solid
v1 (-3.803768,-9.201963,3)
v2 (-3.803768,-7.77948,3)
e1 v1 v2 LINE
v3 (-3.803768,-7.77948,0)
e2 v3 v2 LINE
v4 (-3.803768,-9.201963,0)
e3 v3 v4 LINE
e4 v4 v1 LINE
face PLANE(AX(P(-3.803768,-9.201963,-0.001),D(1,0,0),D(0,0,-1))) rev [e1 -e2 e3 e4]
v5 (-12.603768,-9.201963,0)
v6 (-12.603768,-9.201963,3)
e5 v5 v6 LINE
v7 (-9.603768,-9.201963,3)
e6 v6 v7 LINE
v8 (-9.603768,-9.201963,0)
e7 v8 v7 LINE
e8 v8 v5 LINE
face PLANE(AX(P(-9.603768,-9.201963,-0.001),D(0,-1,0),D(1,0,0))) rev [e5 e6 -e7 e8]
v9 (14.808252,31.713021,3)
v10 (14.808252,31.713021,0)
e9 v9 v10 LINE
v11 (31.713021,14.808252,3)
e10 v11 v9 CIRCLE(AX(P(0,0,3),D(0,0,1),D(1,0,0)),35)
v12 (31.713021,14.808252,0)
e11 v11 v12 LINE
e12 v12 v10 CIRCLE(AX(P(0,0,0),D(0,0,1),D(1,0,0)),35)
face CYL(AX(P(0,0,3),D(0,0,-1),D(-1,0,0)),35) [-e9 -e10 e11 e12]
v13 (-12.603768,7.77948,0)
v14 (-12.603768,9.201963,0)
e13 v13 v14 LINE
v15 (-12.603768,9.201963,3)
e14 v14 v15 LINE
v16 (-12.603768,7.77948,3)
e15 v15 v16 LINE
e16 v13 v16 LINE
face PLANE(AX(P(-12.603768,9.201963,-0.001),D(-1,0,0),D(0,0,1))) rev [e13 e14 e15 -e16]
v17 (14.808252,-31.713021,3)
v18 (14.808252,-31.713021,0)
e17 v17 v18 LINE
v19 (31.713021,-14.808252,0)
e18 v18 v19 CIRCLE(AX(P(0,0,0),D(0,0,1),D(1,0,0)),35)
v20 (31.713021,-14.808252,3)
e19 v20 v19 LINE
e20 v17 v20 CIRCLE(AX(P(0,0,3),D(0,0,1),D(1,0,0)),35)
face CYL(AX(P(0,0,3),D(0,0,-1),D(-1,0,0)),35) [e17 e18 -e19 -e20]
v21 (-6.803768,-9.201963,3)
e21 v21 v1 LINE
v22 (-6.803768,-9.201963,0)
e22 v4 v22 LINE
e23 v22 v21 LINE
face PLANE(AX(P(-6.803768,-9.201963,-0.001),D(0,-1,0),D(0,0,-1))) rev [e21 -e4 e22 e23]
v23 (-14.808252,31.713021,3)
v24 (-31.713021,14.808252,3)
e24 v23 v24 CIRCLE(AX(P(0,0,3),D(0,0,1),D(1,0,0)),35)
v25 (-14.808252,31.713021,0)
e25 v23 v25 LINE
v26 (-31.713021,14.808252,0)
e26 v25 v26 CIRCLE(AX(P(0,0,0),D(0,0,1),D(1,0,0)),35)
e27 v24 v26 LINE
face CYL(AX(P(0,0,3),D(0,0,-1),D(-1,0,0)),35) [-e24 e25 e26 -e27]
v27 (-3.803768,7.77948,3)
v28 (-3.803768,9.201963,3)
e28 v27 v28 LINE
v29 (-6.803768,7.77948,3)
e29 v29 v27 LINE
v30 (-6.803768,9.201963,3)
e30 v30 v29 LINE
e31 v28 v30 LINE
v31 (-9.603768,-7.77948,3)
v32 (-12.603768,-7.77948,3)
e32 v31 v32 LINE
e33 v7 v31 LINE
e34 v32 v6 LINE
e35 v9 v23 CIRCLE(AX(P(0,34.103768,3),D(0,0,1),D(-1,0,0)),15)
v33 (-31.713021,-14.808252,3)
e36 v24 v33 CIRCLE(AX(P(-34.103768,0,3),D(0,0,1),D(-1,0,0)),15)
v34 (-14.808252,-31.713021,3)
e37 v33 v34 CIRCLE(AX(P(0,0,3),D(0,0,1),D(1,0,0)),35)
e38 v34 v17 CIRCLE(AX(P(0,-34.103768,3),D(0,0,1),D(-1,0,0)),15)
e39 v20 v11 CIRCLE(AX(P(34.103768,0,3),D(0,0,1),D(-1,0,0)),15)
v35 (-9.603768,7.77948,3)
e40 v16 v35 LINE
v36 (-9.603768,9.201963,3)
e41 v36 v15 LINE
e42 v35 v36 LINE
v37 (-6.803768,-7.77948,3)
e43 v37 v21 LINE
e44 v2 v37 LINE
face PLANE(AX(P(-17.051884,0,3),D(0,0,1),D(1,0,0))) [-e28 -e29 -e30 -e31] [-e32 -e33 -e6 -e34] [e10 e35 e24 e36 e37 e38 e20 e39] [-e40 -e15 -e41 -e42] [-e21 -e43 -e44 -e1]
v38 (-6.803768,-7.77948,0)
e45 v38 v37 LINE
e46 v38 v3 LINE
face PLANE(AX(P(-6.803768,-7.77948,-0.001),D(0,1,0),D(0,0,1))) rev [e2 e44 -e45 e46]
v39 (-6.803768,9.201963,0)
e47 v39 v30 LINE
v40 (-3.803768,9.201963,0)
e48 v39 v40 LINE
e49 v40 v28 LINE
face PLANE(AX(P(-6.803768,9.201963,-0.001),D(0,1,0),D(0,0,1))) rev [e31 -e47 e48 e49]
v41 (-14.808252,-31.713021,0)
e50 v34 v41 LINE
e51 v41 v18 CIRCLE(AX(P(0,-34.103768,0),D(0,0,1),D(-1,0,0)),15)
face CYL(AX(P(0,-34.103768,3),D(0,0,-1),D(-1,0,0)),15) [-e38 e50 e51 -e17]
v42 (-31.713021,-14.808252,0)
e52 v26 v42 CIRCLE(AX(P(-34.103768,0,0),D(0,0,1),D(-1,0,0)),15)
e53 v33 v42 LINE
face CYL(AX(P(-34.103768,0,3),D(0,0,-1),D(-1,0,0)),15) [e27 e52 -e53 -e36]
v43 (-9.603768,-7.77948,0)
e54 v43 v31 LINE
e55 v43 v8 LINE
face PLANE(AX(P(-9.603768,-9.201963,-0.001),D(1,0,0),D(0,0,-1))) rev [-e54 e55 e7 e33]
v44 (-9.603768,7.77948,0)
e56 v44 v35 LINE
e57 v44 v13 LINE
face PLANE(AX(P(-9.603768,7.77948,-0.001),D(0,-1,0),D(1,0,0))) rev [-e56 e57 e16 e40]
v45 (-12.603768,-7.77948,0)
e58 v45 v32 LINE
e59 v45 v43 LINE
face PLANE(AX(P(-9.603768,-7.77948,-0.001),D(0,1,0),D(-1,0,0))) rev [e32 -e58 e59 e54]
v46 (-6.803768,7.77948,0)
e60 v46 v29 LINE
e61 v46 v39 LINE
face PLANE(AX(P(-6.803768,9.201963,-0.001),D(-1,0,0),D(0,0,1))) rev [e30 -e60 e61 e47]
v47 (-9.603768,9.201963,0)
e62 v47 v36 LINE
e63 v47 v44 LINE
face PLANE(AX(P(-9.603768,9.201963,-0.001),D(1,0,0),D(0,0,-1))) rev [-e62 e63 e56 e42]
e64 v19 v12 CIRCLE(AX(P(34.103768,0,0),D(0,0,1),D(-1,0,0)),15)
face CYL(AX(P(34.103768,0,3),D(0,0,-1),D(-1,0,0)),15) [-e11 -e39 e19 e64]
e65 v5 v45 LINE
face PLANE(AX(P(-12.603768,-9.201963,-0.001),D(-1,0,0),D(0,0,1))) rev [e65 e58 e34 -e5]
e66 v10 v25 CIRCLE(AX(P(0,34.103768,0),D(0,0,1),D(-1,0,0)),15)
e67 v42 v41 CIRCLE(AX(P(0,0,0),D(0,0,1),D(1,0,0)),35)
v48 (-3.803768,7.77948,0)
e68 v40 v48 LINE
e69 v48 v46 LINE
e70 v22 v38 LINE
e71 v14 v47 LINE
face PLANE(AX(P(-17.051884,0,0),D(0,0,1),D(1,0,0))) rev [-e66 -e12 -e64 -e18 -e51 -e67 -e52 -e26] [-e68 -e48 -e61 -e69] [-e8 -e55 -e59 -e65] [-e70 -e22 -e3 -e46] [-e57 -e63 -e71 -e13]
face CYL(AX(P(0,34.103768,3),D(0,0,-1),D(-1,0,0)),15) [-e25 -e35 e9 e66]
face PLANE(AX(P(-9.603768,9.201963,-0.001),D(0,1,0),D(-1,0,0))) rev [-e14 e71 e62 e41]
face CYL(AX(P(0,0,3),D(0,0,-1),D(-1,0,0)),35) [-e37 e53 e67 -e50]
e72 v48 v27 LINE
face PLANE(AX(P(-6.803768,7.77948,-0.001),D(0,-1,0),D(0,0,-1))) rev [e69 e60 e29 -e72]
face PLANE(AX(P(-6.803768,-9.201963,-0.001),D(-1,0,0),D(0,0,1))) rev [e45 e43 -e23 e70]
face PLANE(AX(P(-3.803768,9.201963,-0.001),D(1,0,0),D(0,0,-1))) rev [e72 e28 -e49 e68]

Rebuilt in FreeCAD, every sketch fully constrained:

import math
import FreeCAD as App
import Part
import Sketcher
from FreeCAD import Vector

doc = App.newDocument("Part")
body = doc.addObject("PartDesign::Body", "Body")

# Sketch on XY plane
sketch1 = doc.addObject("Sketcher::SketchObject", "Sketch")
body.addObject(sketch1)
sketch1.AttachmentSupport = (doc.XY_Plane, [""])
sketch1.MapMode = "FlatFace"
sketch1.addGeometry(Part.ArcOfCircle(Part.Circle(Vector(0, 0, 0), Vector(0, 0, 1), 35), math.radians(-155), math.radians(-115)), False)
sketch1.addGeometry(Part.ArcOfCircle(Part.Circle(Vector(0, -34, 0), Vector(0, 0, 1), 15), math.radians(171), math.radians(369)), False)
sketch1.addGeometry(Part.ArcOfCircle(Part.Circle(Vector(0, 0, 0), Vector(0, 0, 1), 35), math.radians(-65), math.radians(-25)), False)
sketch1.addGeometry(Part.ArcOfCircle(Part.Circle(Vector(34, 0, 0), Vector(0, 0, 1), 15), math.radians(-99), math.radians(99)), False)
sketch1.addGeometry(Part.ArcOfCircle(Part.Circle(Vector(0, 0, 0), Vector(0, 0, 1), 35), math.radians(25), math.radians(65)), False)
sketch1.addGeometry(Part.ArcOfCircle(Part.Circle(Vector(0, 34, 0), Vector(0, 0, 1), 15), math.radians(-9), math.radians(189)), False)
sketch1.addGeometry(Part.ArcOfCircle(Part.Circle(Vector(0, 0, 0), Vector(0, 0, 1), 35), math.radians(115), math.radians(155)), False)
sketch1.addGeometry(Part.ArcOfCircle(Part.Circle(Vector(-34, 0, 0), Vector(0, 0, 1), 15), math.radians(81), math.radians(279)), False)
sketch1.addConstraint(Sketcher.Constraint("Coincident", 0, 2, 1, 1))
sketch1.addConstraint(Sketcher.Constraint("Coincident", 1, 2, 2, 1))
sketch1.addConstraint(Sketcher.Constraint("Coincident", 2, 2, 3, 1))
sketch1.addConstraint(Sketcher.Constraint("Coincident", 3, 2, 4, 1))
sketch1.addConstraint(Sketcher.Constraint("Coincident", 4, 2, 5, 1))
sketch1.addConstraint(Sketcher.Constraint("Coincident", 5, 2, 6, 1))
sketch1.addConstraint(Sketcher.Constraint("Coincident", 6, 2, 7, 1))
sketch1.addConstraint(Sketcher.Constraint("Coincident", 7, 2, 0, 1))
sketch1.addConstraint(Sketcher.Constraint("Coincident", 0, 3, -1, 1))
sketch1.addConstraint(Sketcher.Constraint("Coincident", 2, 3, -1, 1))
sketch1.addConstraint(Sketcher.Constraint("Coincident", 4, 3, -1, 1))
sketch1.addConstraint(Sketcher.Constraint("Coincident", 6, 3, -1, 1))
sketch1.addConstraint(Sketcher.Constraint("Equal", 0, 2))
sketch1.addConstraint(Sketcher.Constraint("Equal", 1, 3))
sketch1.addConstraint(Sketcher.Constraint("Equal", 2, 4))
sketch1.addConstraint(Sketcher.Constraint("Equal", 3, 5))
sketch1.addConstraint(Sketcher.Constraint("Equal", 4, 6))
sketch1.addConstraint(Sketcher.Constraint("Equal", 5, 7))
sketch1.addConstraint(Sketcher.Constraint("Symmetric", 1, 3, 5, 3, -1, 1))
sketch1.addConstraint(Sketcher.Constraint("Symmetric", 3, 3, 7, 3, -1, 1))
sketch1.addConstraint(Sketcher.Constraint("PointOnObject", 1, 3, -2))
sketch1.addConstraint(Sketcher.Constraint("PointOnObject", 3, 3, -1))
sketch1.addConstraint(Sketcher.Constraint("Radius", 0, 35.0))
sketch1.addConstraint(Sketcher.Constraint("Radius", 1, 15.0))
sketch1.addConstraint(Sketcher.Constraint("DistanceY", 0, 2, -1, 1, 31.713021))
sketch1.addConstraint(Sketcher.Constraint("DistanceX", -1, 1, 2, 2, 31.713021))
pad1 = doc.addObject("PartDesign::Pad", "Pad")
body.addObject(pad1)
pad1.Profile = sketch1
pad1.Length = 3

# Sketch on XY plane
sketch2 = doc.addObject("Sketcher::SketchObject", "Sketch001")
body.addObject(sketch2)
sketch2.AttachmentSupport = (doc.XY_Plane, [""])
sketch2.MapMode = "FlatFace"
sketch2.AttachmentOffset = App.Placement(Vector(0, 0, 3), App.Rotation())
sketch2.addGeometry(Part.LineSegment(Vector(-6.8, -7.8, 0), Vector(-6.8, -9.2, 0)), False)
sketch2.addGeometry(Part.LineSegment(Vector(-6.8, -9.2, 0), Vector(-3.8, -9.2, 0)), False)
sketch2.addGeometry(Part.LineSegment(Vector(-3.8, -9.2, 0), Vector(-3.8, -7.8, 0)), False)
sketch2.addGeometry(Part.LineSegment(Vector(-3.8, -7.8, 0), Vector(-6.8, -7.8, 0)), False)
sketch2.addConstraint(Sketcher.Constraint("Coincident", 0, 2, 1, 1))
sketch2.addConstraint(Sketcher.Constraint("Coincident", 1, 2, 2, 1))
sketch2.addConstraint(Sketcher.Constraint("Coincident", 2, 2, 3, 1))
sketch2.addConstraint(Sketcher.Constraint("Coincident", 3, 2, 0, 1))
sketch2.addConstraint(Sketcher.Constraint("Vertical", 0))
sketch2.addConstraint(Sketcher.Constraint("Horizontal", 1))
sketch2.addConstraint(Sketcher.Constraint("Vertical", 2))
sketch2.addConstraint(Sketcher.Constraint("Horizontal", 3))
sketch2.addConstraint(Sketcher.Constraint("DistanceX", 1, 1, 1, 2, 3.0))
sketch2.addConstraint(Sketcher.Constraint("DistanceY", 0, 2, 0, 1, 1.422484))
sketch2.addConstraint(Sketcher.Constraint("DistanceY", 2, 2, -1, 1, 7.77948))
sketch2.addConstraint(Sketcher.Constraint("DistanceX", 0, 2, -1, 1, 6.803768))
pocket1 = doc.addObject("PartDesign::Pocket", "Pocket")
body.addObject(pocket1)
pocket1.Profile = sketch2
pocket1.Type = "UpToFirst"

# Sketch on XY plane
sketch3 = doc.addObject("Sketcher::SketchObject", "Sketch002")
body.addObject(sketch3)
sketch3.AttachmentSupport = (doc.XY_Plane, [""])
sketch3.MapMode = "FlatFace"
sketch3.AttachmentOffset = App.Placement(Vector(0, 0, 3), App.Rotation())
sketch3.addGeometry(Part.LineSegment(Vector(-6.8, 9.2, 0), Vector(-6.8, 7.8, 0)), False)
sketch3.addGeometry(Part.LineSegment(Vector(-6.8, 7.8, 0), Vector(-3.8, 7.8, 0)), False)
sketch3.addGeometry(Part.LineSegment(Vector(-3.8, 7.8, 0), Vector(-3.8, 9.2, 0)), False)
sketch3.addGeometry(Part.LineSegment(Vector(-3.8, 9.2, 0), Vector(-6.8, 9.2, 0)), False)
sketch3.addConstraint(Sketcher.Constraint("Coincident", 0, 2, 1, 1))
sketch3.addConstraint(Sketcher.Constraint("Coincident", 1, 2, 2, 1))
sketch3.addConstraint(Sketcher.Constraint("Coincident", 2, 2, 3, 1))
sketch3.addConstraint(Sketcher.Constraint("Coincident", 3, 2, 0, 1))
sketch3.addConstraint(Sketcher.Constraint("Vertical", 0))
sketch3.addConstraint(Sketcher.Constraint("Horizontal", 1))
sketch3.addConstraint(Sketcher.Constraint("Vertical", 2))
sketch3.addConstraint(Sketcher.Constraint("Horizontal", 3))
sketch3.addConstraint(Sketcher.Constraint("DistanceX", 1, 1, 1, 2, 3.0))
sketch3.addConstraint(Sketcher.Constraint("DistanceY", 0, 2, 0, 1, 1.422484))
sketch3.addConstraint(Sketcher.Constraint("DistanceY", -1, 1, 0, 2, 7.77948))
sketch3.addConstraint(Sketcher.Constraint("DistanceX", 0, 2, -1, 1, 6.803768))
pocket2 = doc.addObject("PartDesign::Pocket", "Pocket001")
body.addObject(pocket2)
pocket2.Profile = sketch3
pocket2.Type = "UpToFirst"

# Sketch on XY plane
sketch4 = doc.addObject("Sketcher::SketchObject", "Sketch003")
body.addObject(sketch4)
sketch4.AttachmentSupport = (doc.XY_Plane, [""])
sketch4.MapMode = "FlatFace"
sketch4.AttachmentOffset = App.Placement(Vector(0, 0, 3), App.Rotation())
sketch4.addGeometry(Part.LineSegment(Vector(-12.6, 9.2, 0), Vector(-12.6, 7.8, 0)), False)
sketch4.addGeometry(Part.LineSegment(Vector(-12.6, 7.8, 0), Vector(-9.6, 7.8, 0)), False)
sketch4.addGeometry(Part.LineSegment(Vector(-9.6, 7.8, 0), Vector(-9.6, 9.2, 0)), False)
sketch4.addGeometry(Part.LineSegment(Vector(-9.6, 9.2, 0), Vector(-12.6, 9.2, 0)), False)
sketch4.addConstraint(Sketcher.Constraint("Coincident", 0, 2, 1, 1))
sketch4.addConstraint(Sketcher.Constraint("Coincident", 1, 2, 2, 1))
sketch4.addConstraint(Sketcher.Constraint("Coincident", 2, 2, 3, 1))
sketch4.addConstraint(Sketcher.Constraint("Coincident", 3, 2, 0, 1))
sketch4.addConstraint(Sketcher.Constraint("Vertical", 0))
sketch4.addConstraint(Sketcher.Constraint("Horizontal", 1))
sketch4.addConstraint(Sketcher.Constraint("Vertical", 2))
sketch4.addConstraint(Sketcher.Constraint("Horizontal", 3))
sketch4.addConstraint(Sketcher.Constraint("DistanceX", 1, 1, 1, 2, 3.0))
sketch4.addConstraint(Sketcher.Constraint("DistanceY", 0, 2, 0, 1, 1.422484))
sketch4.addConstraint(Sketcher.Constraint("DistanceY", -1, 1, 0, 2, 7.77948))
sketch4.addConstraint(Sketcher.Constraint("DistanceX", 0, 2, -1, 1, 12.603768))
pocket3 = doc.addObject("PartDesign::Pocket", "Pocket002")
body.addObject(pocket3)
pocket3.Profile = sketch4
pocket3.Type = "UpToFirst"

# Sketch on XY plane
sketch5 = doc.addObject("Sketcher::SketchObject", "Sketch004")
body.addObject(sketch5)
sketch5.AttachmentSupport = (doc.XY_Plane, [""])
sketch5.MapMode = "FlatFace"
sketch5.AttachmentOffset = App.Placement(Vector(0, 0, 3), App.Rotation())
sketch5.addGeometry(Part.LineSegment(Vector(-12.6, -7.8, 0), Vector(-12.6, -9.2, 0)), False)
sketch5.addGeometry(Part.LineSegment(Vector(-12.6, -9.2, 0), Vector(-9.6, -9.2, 0)), False)
sketch5.addGeometry(Part.LineSegment(Vector(-9.6, -9.2, 0), Vector(-9.6, -7.8, 0)), False)
sketch5.addGeometry(Part.LineSegment(Vector(-9.6, -7.8, 0), Vector(-12.6, -7.8, 0)), False)
sketch5.addConstraint(Sketcher.Constraint("Coincident", 0, 2, 1, 1))
sketch5.addConstraint(Sketcher.Constraint("Coincident", 1, 2, 2, 1))
sketch5.addConstraint(Sketcher.Constraint("Coincident", 2, 2, 3, 1))
sketch5.addConstraint(Sketcher.Constraint("Coincident", 3, 2, 0, 1))
sketch5.addConstraint(Sketcher.Constraint("Vertical", 0))
sketch5.addConstraint(Sketcher.Constraint("Horizontal", 1))
sketch5.addConstraint(Sketcher.Constraint("Vertical", 2))
sketch5.addConstraint(Sketcher.Constraint("Horizontal", 3))
sketch5.addConstraint(Sketcher.Constraint("DistanceX", 1, 1, 1, 2, 3.0))
sketch5.addConstraint(Sketcher.Constraint("DistanceY", 0, 2, 0, 1, 1.422484))
sketch5.addConstraint(Sketcher.Constraint("DistanceY", 2, 2, -1, 1, 7.77948))
sketch5.addConstraint(Sketcher.Constraint("DistanceX", 0, 2, -1, 1, 12.603768))
pocket4 = doc.addObject("PartDesign::Pocket", "Pocket003")
body.addObject(pocket4)
pocket4.Profile = sketch5
pocket4.Type = "UpToFirst"

doc.recompute()
